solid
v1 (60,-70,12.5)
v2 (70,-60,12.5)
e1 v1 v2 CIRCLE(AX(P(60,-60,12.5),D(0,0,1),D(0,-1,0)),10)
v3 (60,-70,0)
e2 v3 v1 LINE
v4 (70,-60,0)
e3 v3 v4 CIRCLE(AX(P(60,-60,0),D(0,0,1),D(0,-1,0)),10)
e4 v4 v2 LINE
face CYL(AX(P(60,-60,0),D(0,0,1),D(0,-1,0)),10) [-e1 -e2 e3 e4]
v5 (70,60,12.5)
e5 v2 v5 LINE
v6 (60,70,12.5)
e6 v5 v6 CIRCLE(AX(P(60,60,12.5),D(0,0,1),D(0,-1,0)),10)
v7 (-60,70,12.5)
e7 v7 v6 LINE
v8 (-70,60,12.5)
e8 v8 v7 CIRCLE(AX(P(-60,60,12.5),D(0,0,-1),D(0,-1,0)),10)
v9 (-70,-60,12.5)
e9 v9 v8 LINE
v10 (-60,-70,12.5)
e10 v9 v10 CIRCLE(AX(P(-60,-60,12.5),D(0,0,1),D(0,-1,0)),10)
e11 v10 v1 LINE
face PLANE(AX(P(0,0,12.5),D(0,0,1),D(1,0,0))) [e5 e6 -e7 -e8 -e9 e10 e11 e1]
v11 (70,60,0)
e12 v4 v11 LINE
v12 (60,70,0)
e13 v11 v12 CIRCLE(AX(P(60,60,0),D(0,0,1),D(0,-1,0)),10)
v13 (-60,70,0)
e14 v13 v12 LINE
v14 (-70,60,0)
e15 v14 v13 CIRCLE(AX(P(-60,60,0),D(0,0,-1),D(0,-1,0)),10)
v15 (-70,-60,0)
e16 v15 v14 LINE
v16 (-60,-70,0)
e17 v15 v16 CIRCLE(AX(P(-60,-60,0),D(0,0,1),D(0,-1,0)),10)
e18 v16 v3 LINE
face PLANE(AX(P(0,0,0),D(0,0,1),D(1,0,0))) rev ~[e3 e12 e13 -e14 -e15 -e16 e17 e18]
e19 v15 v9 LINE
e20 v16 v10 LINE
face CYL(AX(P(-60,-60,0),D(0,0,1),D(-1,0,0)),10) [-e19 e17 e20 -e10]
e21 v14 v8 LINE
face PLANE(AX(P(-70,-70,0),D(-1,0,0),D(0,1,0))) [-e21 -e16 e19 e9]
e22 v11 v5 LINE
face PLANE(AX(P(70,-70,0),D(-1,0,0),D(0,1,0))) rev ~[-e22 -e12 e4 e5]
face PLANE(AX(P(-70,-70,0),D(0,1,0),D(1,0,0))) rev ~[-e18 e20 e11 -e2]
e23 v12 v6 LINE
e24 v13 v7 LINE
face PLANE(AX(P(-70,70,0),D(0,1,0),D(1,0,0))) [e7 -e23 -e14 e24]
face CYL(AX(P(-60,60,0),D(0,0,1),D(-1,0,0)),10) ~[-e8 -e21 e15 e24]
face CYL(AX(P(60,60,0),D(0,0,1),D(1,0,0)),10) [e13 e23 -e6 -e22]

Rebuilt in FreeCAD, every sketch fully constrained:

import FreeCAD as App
import Part
import Sketcher
from FreeCAD import Vector


def edges_at(feature, points):
    """Names of the edges that pass closest to the given points."""
    edges = feature.Shape.Edges
    near = lambda p: min(range(len(edges)), key=lambda i: edges[i].distToShape(Part.Vertex(*p))[0])
    return sorted({f"Edge{near(p) + 1}" for p in points})


def add_polygon(sketch, points):
    """Adds a closed chain of lines whose ends are joined by coincident constraints."""
    first, n = sketch.GeometryCount, len(points)
    for a, b in zip(points, points[1:] + points[:1]):
        sketch.addGeometry(Part.LineSegment(App.Vector(*a, 0), App.Vector(*b, 0)), False)
    for i in range(n):
        sketch.addConstraint(Sketcher.Constraint("Coincident", first + i, 2, first + (i + 1) % n, 1))

doc = App.newDocument("Part")
body = doc.addObject("PartDesign::Body", "Body")

# Sketch on XY plane
sketch1 = body.newObject("Sketcher::SketchObject", "Sketch")
sketch1.AttachmentSupport = (doc.getObject("XY_Plane"), [""])
sketch1.MapMode = "FlatFace"
add_polygon(sketch1, [(-70, 70), (-70, -70), (70, -70), (70, 70)])  # lines 0-3
sketch1.addConstraint([
    Sketcher.Constraint("Vertical", 0),
    Sketcher.Constraint("Horizontal", 1),
    Sketcher.Constraint("Vertical", 2),
    Sketcher.Constraint("Horizontal", 3),
    Sketcher.Constraint("Symmetric", 0, 2, 2, 2, -1, 1),
    Sketcher.Constraint("Equal", 3, 0),
    Sketcher.Constraint("DistanceX", 1, 1, 1, 2, 140.0),
])
pad1 = body.newObject("PartDesign::Pad", "Pad")
pad1.Profile = sketch1
pad1.Length = 12.5
doc.recompute()

fillet = body.newObject("PartDesign::Fillet", "Fillet")
fillet.Base = (pad1, edges_at(pad1, [
    (70, -70, 6.25),
    (70, 70, 6.25),
    (-70, 70, 6.25),
    (-70, -70, 6.25),
]))
fillet.Radius = 10

doc.recompute()
